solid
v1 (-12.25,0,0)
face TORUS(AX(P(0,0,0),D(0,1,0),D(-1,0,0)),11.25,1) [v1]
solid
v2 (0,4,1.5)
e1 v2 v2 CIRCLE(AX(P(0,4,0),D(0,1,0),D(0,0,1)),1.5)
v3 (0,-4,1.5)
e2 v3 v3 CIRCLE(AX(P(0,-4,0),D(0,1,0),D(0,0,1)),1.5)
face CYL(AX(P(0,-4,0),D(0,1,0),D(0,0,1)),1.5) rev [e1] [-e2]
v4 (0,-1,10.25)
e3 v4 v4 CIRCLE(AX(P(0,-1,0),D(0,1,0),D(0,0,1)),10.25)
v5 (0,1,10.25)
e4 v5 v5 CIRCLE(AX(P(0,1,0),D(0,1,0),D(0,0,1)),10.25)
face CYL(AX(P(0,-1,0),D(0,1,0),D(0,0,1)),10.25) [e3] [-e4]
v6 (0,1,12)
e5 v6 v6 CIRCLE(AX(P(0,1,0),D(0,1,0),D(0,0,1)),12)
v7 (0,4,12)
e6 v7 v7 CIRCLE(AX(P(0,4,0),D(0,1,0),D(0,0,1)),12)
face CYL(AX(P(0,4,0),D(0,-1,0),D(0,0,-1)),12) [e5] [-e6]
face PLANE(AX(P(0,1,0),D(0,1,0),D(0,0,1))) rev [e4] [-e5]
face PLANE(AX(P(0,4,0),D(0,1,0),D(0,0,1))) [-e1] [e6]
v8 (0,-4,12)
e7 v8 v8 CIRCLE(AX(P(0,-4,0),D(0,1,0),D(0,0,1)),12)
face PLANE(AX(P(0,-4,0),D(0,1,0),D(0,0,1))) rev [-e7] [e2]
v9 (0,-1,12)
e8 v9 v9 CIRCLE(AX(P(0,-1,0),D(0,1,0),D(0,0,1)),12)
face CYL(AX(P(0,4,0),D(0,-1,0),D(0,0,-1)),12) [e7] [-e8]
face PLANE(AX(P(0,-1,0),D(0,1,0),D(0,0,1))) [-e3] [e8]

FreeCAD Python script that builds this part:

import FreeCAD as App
import Part
import Sketcher
from FreeCAD import Vector

doc = App.newDocument("Part")
params = doc.addObject("Spreadsheet::Sheet", "Params")
for row, (alias, value) in enumerate([
    ("sketch1_diameter", "24 mm"),
    ("pad1_length", "8 mm"),
    ("sketch2_diameter", "24 mm"),
    ("sketch2_diameter2", "20.5 mm"),
    ("pocket1_length", "2 mm"),
    ("sketch3_diameter", "3 mm"),
    ("sketch4_diameter", "2 mm"),
    ("revolution_angle", "360 deg"),
], start=1):
    params.set(f"A{row}", alias)
    params.set(f"B{row}", "=" + value)
    params.setAlias(f"B{row}", alias)

body = doc.addObject("PartDesign::Body", "Body")

sketch1 = body.newObject("Sketcher::SketchObject", "Sketch")
sketch1.AttachmentSupport = (doc.getObject("XZ_Plane"), [""])
sketch1.MapMode = "FlatFace"
sketch1.addGeometry(Part.Circle(Vector(0, 0, 0), Vector(0, 0, 1), 12), False)
sketch1.addConstraint([
    Sketcher.Constraint("Coincident", 0, 3, -1, 1),
    Sketcher.Constraint("Diameter", 0, 24.0),
])
sketch1.setExpression("Constraints[1]", "Params.sketch1_diameter")
pad1 = body.newObject("PartDesign::Pad", "Pad")
pad1.Profile = sketch1
pad1.setExpression("Length", "Params.pad1_length")
pad1.Midplane = True

sketch2 = body.newObject("Sketcher::SketchObject", "Sketch001")
sketch2.AttachmentSupport = (doc.getObject("XZ_Plane"), [""])
sketch2.MapMode = "FlatFace"
sketch2.addGeometry([
    Part.Circle(Vector(0, 0, 0), Vector(0, 0, 1), 12),
    Part.Circle(Vector(0, 0, 0), Vector(0, 0, 1), 10.25),
], False)
sketch2.addConstraint([
    Sketcher.Constraint("Coincident", 0, 3, -1, 1),
    Sketcher.Constraint("Coincident", 1, 3, -1, 1),
    Sketcher.Constraint("Diameter", 0, 24.0),
    Sketcher.Constraint("Diameter", 1, 20.5),
])
sketch2.setExpression("Constraints[2]", "Params.sketch2_diameter")
sketch2.setExpression("Constraints[3]", "Params.sketch2_diameter2")
pocket1 = body.newObject("PartDesign::Pocket", "Pocket")
pocket1.Profile = sketch2
pocket1.setExpression("Length", "Params.pocket1_length")
pocket1.Midplane = True

sketch3 = body.newObject("Sketcher::SketchObject", "Sketch002")
sketch3.AttachmentSupport = (doc.getObject("XZ_Plane"), [""])
sketch3.MapMode = "FlatFace"
sketch3.AttachmentOffset = App.Placement(Vector(0, 0, -4), App.Rotation())
sketch3.addGeometry(Part.Circle(Vector(0, 0, 0), Vector(0, 0, 1), 1.5), False)
sketch3.addConstraint([
    Sketcher.Constraint("Coincident", 0, 3, -1, 1),
    Sketcher.Constraint("Diameter", 0, 3.0),
])
sketch3.setExpression("Constraints[1]", "Params.sketch3_diameter")
pocket2 = body.newObject("PartDesign::Pocket", "Pocket001")
pocket2.Profile = sketch3
pocket2.Type = "ThroughAll"
pocket2.Reversed = True
body2 = doc.addObject("PartDesign::Body", "Body001")

sketch4 = body2.newObject("Sketcher::SketchObject", "Sketch003")
sketch4.AttachmentSupport = (doc.getObject("XY_Plane001"), [""])
sketch4.MapMode = "FlatFace"
sketch4.addGeometry(Part.Circle(Vector(-11.25, 0, 0), Vector(0, 0, 1), 1), False)
sketch4.addConstraint([
    Sketcher.Constraint("PointOnObject", 0, 3, -1),
    Sketcher.Constraint("Diameter", 0, 2.0),
    Sketcher.Constraint("DistanceX", 0, 3, -1, 1, 11.25),
])
sketch4.setExpression("Constraints[1]", "Params.sketch4_diameter")
revolution = body2.newObject("PartDesign::Revolution", "Revolution")
revolution.Profile = sketch4
revolution.ReferenceAxis = (sketch4, ["V_Axis"])
revolution.setExpression("Angle", "Params.revolution_angle")

doc.recompute()
